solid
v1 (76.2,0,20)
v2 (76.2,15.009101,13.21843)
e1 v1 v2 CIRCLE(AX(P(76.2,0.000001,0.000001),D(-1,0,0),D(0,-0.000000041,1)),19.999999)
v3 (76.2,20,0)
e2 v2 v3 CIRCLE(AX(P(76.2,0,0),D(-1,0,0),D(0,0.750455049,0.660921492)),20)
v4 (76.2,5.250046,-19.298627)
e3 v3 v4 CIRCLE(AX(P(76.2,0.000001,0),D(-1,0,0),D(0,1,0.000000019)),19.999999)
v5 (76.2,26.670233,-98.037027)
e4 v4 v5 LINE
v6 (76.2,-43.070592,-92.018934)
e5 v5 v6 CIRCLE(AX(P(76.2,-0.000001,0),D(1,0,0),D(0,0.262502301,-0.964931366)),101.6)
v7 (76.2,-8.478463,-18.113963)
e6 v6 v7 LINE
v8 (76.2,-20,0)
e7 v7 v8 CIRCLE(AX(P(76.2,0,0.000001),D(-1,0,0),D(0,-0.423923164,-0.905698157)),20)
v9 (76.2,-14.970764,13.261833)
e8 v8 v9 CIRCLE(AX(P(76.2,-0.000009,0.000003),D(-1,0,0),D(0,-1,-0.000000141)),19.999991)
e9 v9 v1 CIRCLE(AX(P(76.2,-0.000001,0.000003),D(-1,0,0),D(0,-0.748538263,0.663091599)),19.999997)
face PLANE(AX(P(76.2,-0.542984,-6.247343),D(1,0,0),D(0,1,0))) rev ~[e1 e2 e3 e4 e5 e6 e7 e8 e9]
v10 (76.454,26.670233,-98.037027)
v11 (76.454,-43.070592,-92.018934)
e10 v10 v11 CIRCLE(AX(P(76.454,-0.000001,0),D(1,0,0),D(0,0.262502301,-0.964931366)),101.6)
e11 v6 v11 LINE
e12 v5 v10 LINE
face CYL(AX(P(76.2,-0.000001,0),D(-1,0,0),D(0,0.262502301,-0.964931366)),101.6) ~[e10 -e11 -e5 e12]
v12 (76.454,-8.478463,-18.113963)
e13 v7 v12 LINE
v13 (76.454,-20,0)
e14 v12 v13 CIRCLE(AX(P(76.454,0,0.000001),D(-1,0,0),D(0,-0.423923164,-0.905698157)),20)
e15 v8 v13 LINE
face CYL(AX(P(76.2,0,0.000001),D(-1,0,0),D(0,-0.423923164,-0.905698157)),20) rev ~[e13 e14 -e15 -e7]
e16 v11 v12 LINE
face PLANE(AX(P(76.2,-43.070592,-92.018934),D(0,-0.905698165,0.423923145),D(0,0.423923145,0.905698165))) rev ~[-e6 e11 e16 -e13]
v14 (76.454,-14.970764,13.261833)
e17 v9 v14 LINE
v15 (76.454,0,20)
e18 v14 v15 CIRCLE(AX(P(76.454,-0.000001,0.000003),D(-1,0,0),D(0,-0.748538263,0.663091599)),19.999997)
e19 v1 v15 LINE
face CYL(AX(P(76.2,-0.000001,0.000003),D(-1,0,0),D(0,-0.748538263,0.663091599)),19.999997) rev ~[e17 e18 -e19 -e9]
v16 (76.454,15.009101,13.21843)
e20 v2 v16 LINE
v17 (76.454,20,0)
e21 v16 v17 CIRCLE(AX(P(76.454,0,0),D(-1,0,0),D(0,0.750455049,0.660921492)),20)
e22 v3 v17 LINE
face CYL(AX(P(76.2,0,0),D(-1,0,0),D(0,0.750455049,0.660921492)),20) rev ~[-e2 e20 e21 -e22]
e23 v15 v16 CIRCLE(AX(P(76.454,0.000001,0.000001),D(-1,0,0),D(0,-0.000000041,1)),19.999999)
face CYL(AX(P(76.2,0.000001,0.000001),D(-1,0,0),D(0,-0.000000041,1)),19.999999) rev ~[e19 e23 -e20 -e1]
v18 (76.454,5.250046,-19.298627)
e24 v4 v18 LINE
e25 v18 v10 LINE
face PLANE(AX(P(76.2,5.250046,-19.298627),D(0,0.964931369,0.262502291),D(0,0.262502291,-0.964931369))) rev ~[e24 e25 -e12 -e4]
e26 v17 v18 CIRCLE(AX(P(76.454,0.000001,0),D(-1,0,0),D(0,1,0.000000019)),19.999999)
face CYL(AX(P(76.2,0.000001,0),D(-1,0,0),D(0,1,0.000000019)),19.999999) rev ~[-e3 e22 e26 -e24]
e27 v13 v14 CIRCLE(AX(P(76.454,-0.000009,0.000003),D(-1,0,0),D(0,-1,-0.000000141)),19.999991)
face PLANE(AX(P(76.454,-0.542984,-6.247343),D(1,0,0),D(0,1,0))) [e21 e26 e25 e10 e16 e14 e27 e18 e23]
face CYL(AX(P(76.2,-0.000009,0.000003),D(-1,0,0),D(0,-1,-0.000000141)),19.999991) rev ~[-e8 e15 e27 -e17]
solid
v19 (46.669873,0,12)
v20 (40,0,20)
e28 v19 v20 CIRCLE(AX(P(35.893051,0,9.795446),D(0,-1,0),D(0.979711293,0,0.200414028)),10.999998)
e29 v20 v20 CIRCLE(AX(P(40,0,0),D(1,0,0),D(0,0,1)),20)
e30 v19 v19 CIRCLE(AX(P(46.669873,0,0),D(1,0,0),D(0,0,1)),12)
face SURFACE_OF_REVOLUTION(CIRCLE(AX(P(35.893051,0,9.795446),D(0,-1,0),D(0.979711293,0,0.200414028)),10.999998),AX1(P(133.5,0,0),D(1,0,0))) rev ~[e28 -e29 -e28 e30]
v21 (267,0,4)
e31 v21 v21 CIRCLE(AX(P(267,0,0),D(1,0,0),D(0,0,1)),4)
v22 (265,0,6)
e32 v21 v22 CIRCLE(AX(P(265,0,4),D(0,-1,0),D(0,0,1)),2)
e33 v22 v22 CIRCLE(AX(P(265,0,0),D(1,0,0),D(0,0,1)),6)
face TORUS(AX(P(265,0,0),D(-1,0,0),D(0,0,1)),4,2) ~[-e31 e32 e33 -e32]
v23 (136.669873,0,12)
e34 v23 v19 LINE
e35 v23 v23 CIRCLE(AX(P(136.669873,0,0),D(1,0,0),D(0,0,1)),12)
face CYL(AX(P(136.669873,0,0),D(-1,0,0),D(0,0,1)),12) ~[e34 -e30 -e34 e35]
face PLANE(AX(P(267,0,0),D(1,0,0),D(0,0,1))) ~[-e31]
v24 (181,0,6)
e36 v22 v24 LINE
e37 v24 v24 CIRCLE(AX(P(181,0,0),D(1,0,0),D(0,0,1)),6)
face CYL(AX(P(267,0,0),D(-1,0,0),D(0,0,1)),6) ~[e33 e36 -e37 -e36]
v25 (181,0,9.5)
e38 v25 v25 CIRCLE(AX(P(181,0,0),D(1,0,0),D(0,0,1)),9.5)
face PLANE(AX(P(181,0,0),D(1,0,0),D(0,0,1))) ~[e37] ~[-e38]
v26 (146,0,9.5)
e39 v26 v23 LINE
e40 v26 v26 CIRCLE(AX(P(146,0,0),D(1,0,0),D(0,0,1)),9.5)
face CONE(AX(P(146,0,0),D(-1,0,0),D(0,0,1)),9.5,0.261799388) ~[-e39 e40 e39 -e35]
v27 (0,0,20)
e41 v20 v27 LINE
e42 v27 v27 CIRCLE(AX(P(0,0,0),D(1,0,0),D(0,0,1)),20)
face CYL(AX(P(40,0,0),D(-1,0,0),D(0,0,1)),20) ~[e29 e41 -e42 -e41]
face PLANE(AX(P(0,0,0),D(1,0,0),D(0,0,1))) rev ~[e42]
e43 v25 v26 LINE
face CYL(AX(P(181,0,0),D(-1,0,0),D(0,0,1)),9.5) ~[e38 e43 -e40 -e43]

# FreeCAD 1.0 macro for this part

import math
import FreeCAD as App
import Part
import Sketcher

V = App.Vector
Q = App.Units.Quantity


def edges_at(feature, points):
    """Names of the edges that pass closest to the given points."""
    edges = feature.Shape.Edges
    near = lambda p: min(range(len(edges)), key=lambda i: edges[i].distToShape(Part.Vertex(*p))[0])
    return sorted({f"Edge{near(p) + 1}" for p in points})

doc = App.newDocument("Part")
body = doc.addObject("PartDesign::Body", "Body")

# Sketch on XZ plane
sketch1 = body.newObject("Sketcher::SketchObject", "Sketch")
sketch1.AttachmentSupport = (doc.getObject("XZ_Plane"), [""])
sketch1.MapMode = "FlatFace"
sketch1.addGeometry(Part.LineSegment(V(0, 0, 0), V(267, 0, 0)), False)
sketch1.addGeometry(Part.LineSegment(V(267, 0, 0), V(267, 6, 0)), False)
sketch1.addGeometry(Part.LineSegment(V(267, 6, 0), V(181, 6, 0)), False)
sketch1.addGeometry(Part.LineSegment(V(181, 6, 0), V(181, 9.5, 0)), False)
sketch1.addGeometry(Part.LineSegment(V(181, 9.5, 0), V(146, 9.5, 0)), False)
sketch1.addGeometry(Part.LineSegment(V(146, 9.5, 0), V(136.669873, 12, 0)), False)
sketch1.addGeometry(Part.LineSegment(V(136.669873, 12, 0), V(46.669873, 12, 0)), False)
sketch1.addGeometry(Part.ArcOfCircle(Part.Circle(V(35.893051, 9.795446, 0), V(0, 0, 1), 10.999998), math.radians(11.561171), math.radians(68.07707)), False)
sketch1.addGeometry(Part.LineSegment(V(40, 20, 0), V(0, 20, 0)), False)
sketch1.addGeometry(Part.LineSegment(V(0, 20, 0), V(0, 0, 0)), False)
sketch1.addConstraint(Sketcher.Constraint("Coincident", 0, 2, 1, 1))
sketch1.addConstraint(Sketcher.Constraint("Coincident", 1, 2, 2, 1))
sketch1.addConstraint(Sketcher.Constraint("Coincident", 2, 2, 3, 1))
sketch1.addConstraint(Sketcher.Constraint("Coincident", 3, 2, 4, 1))
sketch1.addConstraint(Sketcher.Constraint("Coincident", 4, 2, 5, 1))
sketch1.addConstraint(Sketcher.Constraint("Coincident", 5, 2, 6, 1))
sketch1.addConstraint(Sketcher.Constraint("Coincident", 6, 2, 7, 1))
sketch1.addConstraint(Sketcher.Constraint("Coincident", 7, 2, 8, 1))
sketch1.addConstraint(Sketcher.Constraint("Coincident", 8, 2, 9, 1))
sketch1.addConstraint(Sketcher.Constraint("Coincident", 9, 2, 0, 1))
sketch1.addConstraint(Sketcher.Constraint("Horizontal", 0))
sketch1.addConstraint(Sketcher.Constraint("Vertical", 1))
sketch1.addConstraint(Sketcher.Constraint("Horizontal", 2))
sketch1.addConstraint(Sketcher.Constraint("Vertical", 3))
sketch1.addConstraint(Sketcher.Constraint("Horizontal", 4))
sketch1.addConstraint(Sketcher.Constraint("Horizontal", 6))
sketch1.addConstraint(Sketcher.Constraint("Horizontal", 8))
sketch1.addConstraint(Sketcher.Constraint("Vertical", 9))
sketch1.addConstraint(Sketcher.Constraint("Coincident", 9, 2, -1, 1))
sketch1.addConstraint(Sketcher.Constraint("DistanceX", 0, 1, 0, 2, Q("267 mm")))
sketch1.addConstraint(Sketcher.Constraint("DistanceX", 2, 2, 2, 1, Q("86 mm")))
sketch1.addConstraint(Sketcher.Constraint("DistanceX", 4, 2, 4, 1, Q("35 mm")))
sketch1.addConstraint(Sketcher.Constraint("DistanceX", 6, 2, 6, 1, Q("90 mm")))
sketch1.addConstraint(Sketcher.Constraint("DistanceX", 8, 2, 8, 1, Q("40 mm")))
sketch1.addConstraint(Sketcher.Constraint("DistanceY", 1, 1, 1, 2, Q("6 mm")))
sketch1.addConstraint(Sketcher.Constraint("DistanceY", 9, 2, 9, 1, Q("20 mm")))
sketch1.addConstraint(Sketcher.Constraint("Angle", 5, Q("165 deg")))
sketch1.addConstraint(Sketcher.Constraint("DistanceY", 3, 1, 3, 2, Q("3.5 mm")))
sketch1.addConstraint(Sketcher.Constraint("DistanceY", -1, 1, 5, 2, Q("12 mm")))
sketch1.addConstraint(Sketcher.Constraint("Radius", 7, Q("10.999998 mm")))
revolution = body.newObject("PartDesign::Revolution", "Revolution")
revolution.Profile = sketch1
revolution.ReferenceAxis = (sketch1, ["H_Axis"])
revolution.Angle = 360
doc.recompute()

fillet = body.newObject("PartDesign::Fillet", "Fillet")
fillet.Base = (revolution, edges_at(revolution, [(267, 0, -6)]))
fillet.Radius = 2
body2 = doc.addObject("PartDesign::Body", "Body001")

# Sketch on YZ plane
sketch2 = body2.newObject("Sketcher::SketchObject", "Sketch001")
sketch2.AttachmentSupport = (doc.getObject("YZ_Plane001"), [""])
sketch2.MapMode = "FlatFace"
sketch2.AttachmentOffset = App.Placement(V(0, 0, 76.2), App.Rotation())
sketch2.addGeometry(Part.ArcOfCircle(Part.Circle(V(0.000001, 0, 0), V(0, 0, 1), 19.999999), math.radians(-74.78141), math.radians(0.000001)), False)
sketch2.addGeometry(Part.LineSegment(V(5.250046, -19.298627, 0), V(26.670233, -98.037027, 0)), False)
sketch2.addGeometry(Part.ArcOfCircle(Part.Circle(V(-0.000001, 0, 0), V(0, 0, 1), 101.6), math.radians(-74.781408), math.radians(244.917479)), False)
sketch2.addGeometry(Part.LineSegment(V(-43.070592, -92.018934, 0), V(-8.478463, -18.113963, 0)), False)
sketch2.addGeometry(Part.ArcOfCircle(Part.Circle(V(0, 0.000001, 0), V(0, 0, 1), 20), math.radians(-179.999998), math.radians(-115.082522)), False)
sketch2.addGeometry(Part.ArcOfCircle(Part.Circle(V(-0.000009, 0.000003, 0), V(0, 0, 1), 19.999991), math.radians(138.463901), math.radians(180.000008)), False)
sketch2.addGeometry(Part.ArcOfCircle(Part.Circle(V(-0.000001, 0.000003, 0), V(0, 0, 1), 19.999997), math.radians(89.999997), math.radians(138.463916)), False)
sketch2.addGeometry(Part.ArcOfCircle(Part.Circle(V(0.000001, 0.000001, 0), V(0, 0, 1), 19.999999), math.radians(41.370188), math.radians(90.000002)), False)
sketch2.addGeometry(Part.ArcOfCircle(Part.Circle(V(0, 0, 0), V(0, 0, 1), 20), math.radians(-0.000001), math.radians(41.370189)), False)
sketch2.addConstraint(Sketcher.Constraint("Coincident", 0, 1, 1, 1))
sketch2.addConstraint(Sketcher.Constraint("Coincident", 1, 2, 2, 1))
sketch2.addConstraint(Sketcher.Constraint("Coincident", 2, 2, 3, 1))
sketch2.addConstraint(Sketcher.Constraint("Coincident", 3, 2, 4, 2))
sketch2.addConstraint(Sketcher.Constraint("Tangent", 4, 1, 5, 2))
sketch2.addConstraint(Sketcher.Constraint("Tangent", 5, 1, 6, 2))
sketch2.addConstraint(Sketcher.Constraint("Tangent", 6, 1, 7, 2))
sketch2.addConstraint(Sketcher.Constraint("Tangent", 7, 1, 8, 2))
sketch2.addConstraint(Sketcher.Constraint("Tangent", 8, 1, 0, 2))
sketch2.addConstraint(Sketcher.Constraint("Coincident", 0, 3, -1, 1))
sketch2.addConstraint(Sketcher.Constraint("Coincident", 2, 3, -1, 1))
sketch2.addConstraint(Sketcher.Constraint("Coincident", 4, 3, -1, 1))
sketch2.addConstraint(Sketcher.Constraint("Coincident", 6, 3, -1, 1))
sketch2.addConstraint(Sketcher.Constraint("Equal", 0, 4))
sketch2.addConstraint(Sketcher.Constraint("PointOnObject", 4, 1, -1))
sketch2.addConstraint(Sketcher.Constraint("PointOnObject", 6, 1, -2))
sketch2.addConstraint(Sketcher.Constraint("PointOnObject", 8, 1, -1))
sketch2.addConstraint(Sketcher.Constraint("Radius", 0, Q("19.999999 mm")))
sketch2.addConstraint(Sketcher.Constraint("Radius", 2, Q("101.6 mm")))
sketch2.addConstraint(Sketcher.Constraint("DistanceX", -1, 1, 7, 1, Q("15.009101 mm")))
sketch2.addConstraint(Sketcher.Constraint("DistanceY", 1, 2, 0, 1, Q("78.7384 mm")))
sketch2.addConstraint(Sketcher.Constraint("DistanceX", 2, 2, -1, 1, Q("43.070592 mm")))
sketch2.addConstraint(Sketcher.Constraint("DistanceY", 0, 1, 7, 3, Q("19.298628 mm")))
sketch2.addConstraint(Sketcher.Constraint("DistanceX", 3, 2, 0, 1, Q("13.728509 mm")))
sketch2.addConstraint(Sketcher.Constraint("DistanceY", 5, 3, 5, 1, Q("13.26183 mm")))
pad1 = body2.newObject("PartDesign::Pad", "Pad")
pad1.Profile = sketch2
pad1.Length = 0.254

doc.recompute()
